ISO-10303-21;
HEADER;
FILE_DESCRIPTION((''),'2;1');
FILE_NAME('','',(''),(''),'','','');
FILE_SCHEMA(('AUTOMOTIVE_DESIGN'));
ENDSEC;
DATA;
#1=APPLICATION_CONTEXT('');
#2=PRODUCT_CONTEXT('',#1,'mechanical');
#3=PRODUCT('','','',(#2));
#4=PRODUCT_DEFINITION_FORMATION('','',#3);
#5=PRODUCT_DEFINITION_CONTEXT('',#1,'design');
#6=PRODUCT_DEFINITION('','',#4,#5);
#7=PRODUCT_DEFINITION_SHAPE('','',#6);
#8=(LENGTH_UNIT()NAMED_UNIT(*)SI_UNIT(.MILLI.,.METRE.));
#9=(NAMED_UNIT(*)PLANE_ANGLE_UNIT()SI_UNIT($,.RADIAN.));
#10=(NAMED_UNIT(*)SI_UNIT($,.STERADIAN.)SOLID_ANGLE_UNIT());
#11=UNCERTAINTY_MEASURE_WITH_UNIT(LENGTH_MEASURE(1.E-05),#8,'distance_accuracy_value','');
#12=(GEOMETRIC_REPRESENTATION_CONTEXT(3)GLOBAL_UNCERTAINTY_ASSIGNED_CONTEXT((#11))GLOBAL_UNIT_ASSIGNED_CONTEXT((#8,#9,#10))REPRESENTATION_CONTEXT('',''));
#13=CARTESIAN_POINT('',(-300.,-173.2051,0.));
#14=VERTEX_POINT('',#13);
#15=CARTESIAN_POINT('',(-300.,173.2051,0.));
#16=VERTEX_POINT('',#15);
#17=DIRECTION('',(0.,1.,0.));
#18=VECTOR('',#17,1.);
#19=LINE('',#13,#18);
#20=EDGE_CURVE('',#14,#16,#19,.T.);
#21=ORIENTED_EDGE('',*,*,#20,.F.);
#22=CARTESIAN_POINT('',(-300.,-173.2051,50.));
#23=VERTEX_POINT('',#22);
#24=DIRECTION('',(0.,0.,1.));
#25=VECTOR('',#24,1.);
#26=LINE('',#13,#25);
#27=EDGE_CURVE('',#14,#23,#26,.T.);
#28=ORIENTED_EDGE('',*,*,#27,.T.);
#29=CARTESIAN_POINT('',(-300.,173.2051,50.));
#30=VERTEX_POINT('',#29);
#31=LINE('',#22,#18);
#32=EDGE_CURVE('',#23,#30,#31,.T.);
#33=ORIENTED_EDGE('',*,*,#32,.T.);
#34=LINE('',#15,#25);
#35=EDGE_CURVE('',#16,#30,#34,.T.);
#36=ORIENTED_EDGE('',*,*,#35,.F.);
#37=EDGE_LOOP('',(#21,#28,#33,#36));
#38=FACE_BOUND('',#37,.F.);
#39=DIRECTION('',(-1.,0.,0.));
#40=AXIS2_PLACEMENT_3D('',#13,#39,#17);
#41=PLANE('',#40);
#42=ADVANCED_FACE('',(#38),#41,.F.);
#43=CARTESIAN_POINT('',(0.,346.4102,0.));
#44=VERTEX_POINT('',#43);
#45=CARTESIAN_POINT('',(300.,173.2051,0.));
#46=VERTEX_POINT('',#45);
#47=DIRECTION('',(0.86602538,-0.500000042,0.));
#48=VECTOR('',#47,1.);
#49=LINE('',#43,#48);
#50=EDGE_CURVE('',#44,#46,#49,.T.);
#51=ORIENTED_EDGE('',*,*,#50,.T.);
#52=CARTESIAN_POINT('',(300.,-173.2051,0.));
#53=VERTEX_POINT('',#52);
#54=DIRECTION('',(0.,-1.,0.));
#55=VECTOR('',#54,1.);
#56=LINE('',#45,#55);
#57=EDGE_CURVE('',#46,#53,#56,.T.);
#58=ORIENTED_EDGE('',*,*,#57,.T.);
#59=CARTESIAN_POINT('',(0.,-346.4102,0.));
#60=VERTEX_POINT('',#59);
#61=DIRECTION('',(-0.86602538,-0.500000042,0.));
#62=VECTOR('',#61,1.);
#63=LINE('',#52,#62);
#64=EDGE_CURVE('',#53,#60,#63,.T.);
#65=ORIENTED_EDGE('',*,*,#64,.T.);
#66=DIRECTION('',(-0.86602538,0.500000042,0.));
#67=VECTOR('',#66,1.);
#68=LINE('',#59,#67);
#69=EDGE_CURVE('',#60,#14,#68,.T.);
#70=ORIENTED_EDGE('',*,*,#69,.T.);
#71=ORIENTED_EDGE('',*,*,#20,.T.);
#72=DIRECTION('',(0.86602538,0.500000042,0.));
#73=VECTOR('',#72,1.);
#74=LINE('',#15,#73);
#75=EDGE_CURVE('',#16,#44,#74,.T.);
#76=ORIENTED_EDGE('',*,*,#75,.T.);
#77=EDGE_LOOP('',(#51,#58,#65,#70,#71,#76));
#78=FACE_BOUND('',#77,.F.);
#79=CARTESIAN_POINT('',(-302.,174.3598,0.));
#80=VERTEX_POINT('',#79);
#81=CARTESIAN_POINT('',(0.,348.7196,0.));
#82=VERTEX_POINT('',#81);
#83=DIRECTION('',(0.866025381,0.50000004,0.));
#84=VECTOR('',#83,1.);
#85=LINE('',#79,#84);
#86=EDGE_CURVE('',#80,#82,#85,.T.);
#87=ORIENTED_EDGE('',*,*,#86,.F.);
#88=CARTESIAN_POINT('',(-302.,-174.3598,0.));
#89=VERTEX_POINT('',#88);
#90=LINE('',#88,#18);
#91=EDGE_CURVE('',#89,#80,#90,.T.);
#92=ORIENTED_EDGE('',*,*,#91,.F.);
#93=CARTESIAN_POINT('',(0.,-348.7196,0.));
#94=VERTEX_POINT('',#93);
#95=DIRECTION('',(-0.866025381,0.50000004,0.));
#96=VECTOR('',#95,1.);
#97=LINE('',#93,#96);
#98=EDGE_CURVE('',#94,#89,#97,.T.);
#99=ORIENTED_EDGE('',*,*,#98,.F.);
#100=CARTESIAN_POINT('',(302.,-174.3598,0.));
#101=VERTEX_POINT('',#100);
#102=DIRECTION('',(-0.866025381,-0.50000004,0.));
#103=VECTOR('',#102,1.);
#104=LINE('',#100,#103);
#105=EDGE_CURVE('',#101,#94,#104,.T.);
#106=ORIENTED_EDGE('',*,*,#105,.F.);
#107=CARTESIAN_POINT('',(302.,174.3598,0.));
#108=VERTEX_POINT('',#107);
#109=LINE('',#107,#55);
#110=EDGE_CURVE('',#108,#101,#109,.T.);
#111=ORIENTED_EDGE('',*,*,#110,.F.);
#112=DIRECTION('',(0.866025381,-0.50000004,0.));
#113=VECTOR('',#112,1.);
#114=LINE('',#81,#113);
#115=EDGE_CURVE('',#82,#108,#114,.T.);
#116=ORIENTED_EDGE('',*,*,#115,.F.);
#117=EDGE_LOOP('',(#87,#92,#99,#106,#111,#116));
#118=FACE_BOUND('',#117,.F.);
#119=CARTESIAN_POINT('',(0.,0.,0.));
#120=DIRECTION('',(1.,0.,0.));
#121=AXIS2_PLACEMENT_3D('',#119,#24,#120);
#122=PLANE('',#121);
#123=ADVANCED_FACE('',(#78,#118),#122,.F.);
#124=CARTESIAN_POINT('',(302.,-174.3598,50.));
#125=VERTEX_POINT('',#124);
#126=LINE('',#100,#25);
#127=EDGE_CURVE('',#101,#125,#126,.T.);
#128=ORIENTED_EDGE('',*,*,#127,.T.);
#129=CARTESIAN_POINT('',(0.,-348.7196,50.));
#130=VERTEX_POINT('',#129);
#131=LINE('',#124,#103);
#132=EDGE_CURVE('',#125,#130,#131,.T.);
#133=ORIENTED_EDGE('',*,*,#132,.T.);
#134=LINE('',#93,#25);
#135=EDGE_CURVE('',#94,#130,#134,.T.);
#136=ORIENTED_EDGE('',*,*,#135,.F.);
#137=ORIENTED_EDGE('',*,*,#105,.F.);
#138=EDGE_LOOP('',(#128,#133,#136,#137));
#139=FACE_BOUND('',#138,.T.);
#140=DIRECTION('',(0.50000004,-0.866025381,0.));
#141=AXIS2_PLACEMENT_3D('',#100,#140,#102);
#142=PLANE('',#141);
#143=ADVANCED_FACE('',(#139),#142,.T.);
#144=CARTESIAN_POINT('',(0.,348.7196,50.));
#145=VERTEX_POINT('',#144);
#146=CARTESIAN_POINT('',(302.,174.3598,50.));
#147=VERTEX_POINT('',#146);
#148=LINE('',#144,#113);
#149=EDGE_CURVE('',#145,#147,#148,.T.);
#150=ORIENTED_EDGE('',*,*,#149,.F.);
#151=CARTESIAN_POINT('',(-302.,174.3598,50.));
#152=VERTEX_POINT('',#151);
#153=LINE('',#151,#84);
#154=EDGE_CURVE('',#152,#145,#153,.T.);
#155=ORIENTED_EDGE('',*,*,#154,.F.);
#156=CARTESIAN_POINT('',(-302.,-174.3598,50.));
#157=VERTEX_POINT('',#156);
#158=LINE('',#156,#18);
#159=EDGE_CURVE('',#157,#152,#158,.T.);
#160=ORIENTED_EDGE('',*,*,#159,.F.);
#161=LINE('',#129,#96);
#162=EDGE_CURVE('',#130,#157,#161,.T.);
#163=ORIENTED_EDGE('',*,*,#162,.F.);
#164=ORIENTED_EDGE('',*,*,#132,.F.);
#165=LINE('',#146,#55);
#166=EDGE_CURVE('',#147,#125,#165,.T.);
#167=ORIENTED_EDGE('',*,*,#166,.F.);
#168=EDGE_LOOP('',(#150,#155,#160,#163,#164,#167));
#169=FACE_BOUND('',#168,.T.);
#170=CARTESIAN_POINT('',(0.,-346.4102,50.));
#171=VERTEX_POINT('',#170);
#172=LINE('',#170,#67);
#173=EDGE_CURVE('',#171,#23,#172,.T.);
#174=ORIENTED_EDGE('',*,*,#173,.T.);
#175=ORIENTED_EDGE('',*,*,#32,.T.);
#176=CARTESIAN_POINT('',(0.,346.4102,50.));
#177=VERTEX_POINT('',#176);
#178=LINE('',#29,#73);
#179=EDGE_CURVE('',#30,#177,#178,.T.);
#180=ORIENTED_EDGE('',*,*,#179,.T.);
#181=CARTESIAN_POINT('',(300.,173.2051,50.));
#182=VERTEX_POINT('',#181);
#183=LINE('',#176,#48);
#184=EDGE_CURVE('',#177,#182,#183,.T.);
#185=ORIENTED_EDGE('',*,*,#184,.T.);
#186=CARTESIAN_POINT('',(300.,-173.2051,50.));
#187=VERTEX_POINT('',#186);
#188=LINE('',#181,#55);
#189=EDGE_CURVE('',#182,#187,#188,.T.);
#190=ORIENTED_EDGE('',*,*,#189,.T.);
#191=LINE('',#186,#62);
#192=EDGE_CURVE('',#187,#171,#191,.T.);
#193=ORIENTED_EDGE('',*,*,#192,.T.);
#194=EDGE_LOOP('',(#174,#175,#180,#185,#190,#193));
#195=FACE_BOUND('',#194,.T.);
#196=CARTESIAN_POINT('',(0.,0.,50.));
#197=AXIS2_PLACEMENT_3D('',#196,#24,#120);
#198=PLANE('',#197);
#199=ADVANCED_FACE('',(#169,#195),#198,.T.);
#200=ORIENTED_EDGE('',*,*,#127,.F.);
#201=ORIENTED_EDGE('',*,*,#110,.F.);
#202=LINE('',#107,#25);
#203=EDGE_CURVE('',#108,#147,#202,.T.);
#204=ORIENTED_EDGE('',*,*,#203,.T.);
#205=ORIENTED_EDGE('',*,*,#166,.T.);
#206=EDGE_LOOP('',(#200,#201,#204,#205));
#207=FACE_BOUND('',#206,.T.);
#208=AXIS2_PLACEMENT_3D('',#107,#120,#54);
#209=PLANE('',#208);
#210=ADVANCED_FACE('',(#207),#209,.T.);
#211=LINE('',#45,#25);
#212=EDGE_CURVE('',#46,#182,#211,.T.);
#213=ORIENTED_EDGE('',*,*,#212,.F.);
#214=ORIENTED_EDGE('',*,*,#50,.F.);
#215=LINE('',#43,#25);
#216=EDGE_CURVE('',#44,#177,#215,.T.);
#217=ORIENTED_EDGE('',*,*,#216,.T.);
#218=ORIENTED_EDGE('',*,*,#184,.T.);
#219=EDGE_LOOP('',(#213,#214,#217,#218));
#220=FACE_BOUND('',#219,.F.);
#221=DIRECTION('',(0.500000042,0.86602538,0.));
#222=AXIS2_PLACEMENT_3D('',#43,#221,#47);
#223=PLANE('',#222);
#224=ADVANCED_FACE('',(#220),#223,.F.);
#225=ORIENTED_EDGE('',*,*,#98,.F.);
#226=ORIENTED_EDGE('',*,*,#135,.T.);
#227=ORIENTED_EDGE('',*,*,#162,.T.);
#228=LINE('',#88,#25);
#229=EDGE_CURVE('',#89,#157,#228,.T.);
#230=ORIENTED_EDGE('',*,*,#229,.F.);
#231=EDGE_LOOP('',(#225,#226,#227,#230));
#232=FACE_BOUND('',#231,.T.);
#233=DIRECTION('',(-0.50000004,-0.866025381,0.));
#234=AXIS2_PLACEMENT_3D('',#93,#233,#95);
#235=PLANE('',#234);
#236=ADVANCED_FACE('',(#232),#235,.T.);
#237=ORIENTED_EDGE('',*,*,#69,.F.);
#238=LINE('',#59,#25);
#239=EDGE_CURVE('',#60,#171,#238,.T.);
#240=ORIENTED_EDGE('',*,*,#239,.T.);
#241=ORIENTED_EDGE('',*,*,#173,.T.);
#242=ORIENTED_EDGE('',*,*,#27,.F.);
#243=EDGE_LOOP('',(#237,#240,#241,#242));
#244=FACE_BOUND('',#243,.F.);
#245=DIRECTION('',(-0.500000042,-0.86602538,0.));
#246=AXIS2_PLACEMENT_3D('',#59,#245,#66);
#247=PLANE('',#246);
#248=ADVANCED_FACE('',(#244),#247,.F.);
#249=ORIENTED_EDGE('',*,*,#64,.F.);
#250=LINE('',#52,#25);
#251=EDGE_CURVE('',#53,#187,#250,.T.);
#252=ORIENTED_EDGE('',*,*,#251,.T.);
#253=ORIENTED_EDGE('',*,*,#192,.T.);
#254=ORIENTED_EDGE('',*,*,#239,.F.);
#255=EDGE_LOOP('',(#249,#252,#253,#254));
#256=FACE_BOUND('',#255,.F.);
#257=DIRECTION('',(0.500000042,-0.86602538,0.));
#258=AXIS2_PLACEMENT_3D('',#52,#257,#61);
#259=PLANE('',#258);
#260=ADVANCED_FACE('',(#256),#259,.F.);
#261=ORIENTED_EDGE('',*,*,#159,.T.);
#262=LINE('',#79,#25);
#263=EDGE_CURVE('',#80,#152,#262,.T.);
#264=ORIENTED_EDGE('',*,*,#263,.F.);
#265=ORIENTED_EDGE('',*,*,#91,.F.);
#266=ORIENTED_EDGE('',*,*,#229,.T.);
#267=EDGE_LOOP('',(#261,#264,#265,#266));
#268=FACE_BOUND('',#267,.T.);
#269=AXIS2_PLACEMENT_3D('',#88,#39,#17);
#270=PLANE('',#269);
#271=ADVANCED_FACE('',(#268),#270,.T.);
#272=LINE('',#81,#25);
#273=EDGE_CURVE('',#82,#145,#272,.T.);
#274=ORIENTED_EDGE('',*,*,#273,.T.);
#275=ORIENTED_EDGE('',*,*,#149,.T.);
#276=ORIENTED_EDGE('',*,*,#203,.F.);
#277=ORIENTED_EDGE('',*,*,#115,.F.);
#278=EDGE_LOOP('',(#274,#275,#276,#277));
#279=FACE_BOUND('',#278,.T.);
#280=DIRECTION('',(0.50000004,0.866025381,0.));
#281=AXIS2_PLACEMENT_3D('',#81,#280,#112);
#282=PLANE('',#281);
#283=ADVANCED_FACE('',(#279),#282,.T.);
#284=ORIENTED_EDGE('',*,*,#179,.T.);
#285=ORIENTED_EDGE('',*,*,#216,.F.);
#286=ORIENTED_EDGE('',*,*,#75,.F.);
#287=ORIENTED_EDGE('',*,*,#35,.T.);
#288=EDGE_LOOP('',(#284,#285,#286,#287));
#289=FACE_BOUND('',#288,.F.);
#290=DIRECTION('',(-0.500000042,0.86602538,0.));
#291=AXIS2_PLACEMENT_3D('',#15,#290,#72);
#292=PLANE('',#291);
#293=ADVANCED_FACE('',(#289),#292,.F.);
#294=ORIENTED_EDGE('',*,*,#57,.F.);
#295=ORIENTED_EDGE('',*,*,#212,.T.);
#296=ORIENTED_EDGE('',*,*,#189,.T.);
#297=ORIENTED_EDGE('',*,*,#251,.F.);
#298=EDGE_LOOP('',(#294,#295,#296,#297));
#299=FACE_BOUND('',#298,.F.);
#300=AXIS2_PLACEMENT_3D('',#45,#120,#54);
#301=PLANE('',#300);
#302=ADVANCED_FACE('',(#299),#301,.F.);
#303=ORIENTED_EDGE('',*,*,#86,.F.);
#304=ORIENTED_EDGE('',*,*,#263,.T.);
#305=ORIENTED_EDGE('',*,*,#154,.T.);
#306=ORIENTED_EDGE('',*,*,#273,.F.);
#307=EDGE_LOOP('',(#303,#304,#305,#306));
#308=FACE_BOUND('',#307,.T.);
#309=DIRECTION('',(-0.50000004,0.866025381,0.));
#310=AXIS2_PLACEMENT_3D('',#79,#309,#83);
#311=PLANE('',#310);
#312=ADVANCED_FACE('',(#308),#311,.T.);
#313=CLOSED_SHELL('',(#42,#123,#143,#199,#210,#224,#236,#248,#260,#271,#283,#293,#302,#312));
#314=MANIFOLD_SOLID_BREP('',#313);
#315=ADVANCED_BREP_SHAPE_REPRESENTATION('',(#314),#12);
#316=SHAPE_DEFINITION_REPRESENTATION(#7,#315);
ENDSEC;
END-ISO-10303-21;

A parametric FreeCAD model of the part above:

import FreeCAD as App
import Part
import Sketcher
Q = App.Units.Quantity


def add_polygon(sketch, points):
    """Adds a closed chain of lines whose ends are joined by coincident constraints."""
    first, n = sketch.GeometryCount, len(points)
    for a, b in zip(points, points[1:] + points[:1]):
        sketch.addGeometry(Part.LineSegment(App.Vector(*a, 0), App.Vector(*b, 0)), False)
    for i in range(n):
        sketch.addConstraint(Sketcher.Constraint("Coincident", first + i, 2, first + (i + 1) % n, 1))

doc = App.newDocument("Part")
body = doc.addObject("PartDesign::Body", "Body")

sketch1 = body.newObject("Sketcher::SketchObject", "Sketch")
sketch1.AttachmentSupport = (doc.getObject("XY_Plane"), [""])
sketch1.MapMode = "FlatFace"
add_polygon(sketch1, [(302, -174), (302, 174), (0, 349), (-302, 174), (-302, -174), (0, -349)])
add_polygon(sketch1, [(300, 173), (300, -173), (0, -346), (-300, -173), (-300, 173), (0, 346)])
sketch1.addConstraint([
    Sketcher.Constraint("Vertical", 0),
    Sketcher.Constraint("Vertical", 3),
    Sketcher.Constraint("Vertical", 6),
    Sketcher.Constraint("Vertical", 9),
    Sketcher.Constraint("Symmetric", 0, 2, 3, 2, -1, 1),
    Sketcher.Constraint("Symmetric", 1, 2, 4, 2, -1, 1),
    Sketcher.Constraint("Symmetric", 6, 2, 9, 2, -1, 1),
    Sketcher.Constraint("Symmetric", 7, 2, 10, 2, -1, 1),
    Sketcher.Constraint("PointOnObject", 1, 2, -2),
    Sketcher.Constraint("PointOnObject", 7, 2, -2),
    Sketcher.Constraint("Parallel", 2, 5),
    Sketcher.Constraint("Parallel", 5, 7),
    Sketcher.Constraint("Parallel", 4, 8),
    Sketcher.Constraint("Parallel", 8, 11),
    Sketcher.Constraint("Horizontal", 0, 2, 2, 2),
    Sketcher.Constraint("DistanceX", -1, 1, 0, 2, Q("302 mm")),
    Sketcher.Constraint("DistanceX", -1, 1, 6, 2, Q("300 mm")),
    Sketcher.Constraint("Angle", 1, Q("150 deg")),
    Sketcher.Constraint("DistanceY", 7, 2, 0, 2, Q("520.77 mm")),
    Sketcher.Constraint("DistanceY", 0, 1, 0, 2, Q("348.7196 mm")),
])
pad1 = body.newObject("PartDesign::Pad", "Pad")
pad1.Profile = sketch1
pad1.Length = 50

doc.recompute()
